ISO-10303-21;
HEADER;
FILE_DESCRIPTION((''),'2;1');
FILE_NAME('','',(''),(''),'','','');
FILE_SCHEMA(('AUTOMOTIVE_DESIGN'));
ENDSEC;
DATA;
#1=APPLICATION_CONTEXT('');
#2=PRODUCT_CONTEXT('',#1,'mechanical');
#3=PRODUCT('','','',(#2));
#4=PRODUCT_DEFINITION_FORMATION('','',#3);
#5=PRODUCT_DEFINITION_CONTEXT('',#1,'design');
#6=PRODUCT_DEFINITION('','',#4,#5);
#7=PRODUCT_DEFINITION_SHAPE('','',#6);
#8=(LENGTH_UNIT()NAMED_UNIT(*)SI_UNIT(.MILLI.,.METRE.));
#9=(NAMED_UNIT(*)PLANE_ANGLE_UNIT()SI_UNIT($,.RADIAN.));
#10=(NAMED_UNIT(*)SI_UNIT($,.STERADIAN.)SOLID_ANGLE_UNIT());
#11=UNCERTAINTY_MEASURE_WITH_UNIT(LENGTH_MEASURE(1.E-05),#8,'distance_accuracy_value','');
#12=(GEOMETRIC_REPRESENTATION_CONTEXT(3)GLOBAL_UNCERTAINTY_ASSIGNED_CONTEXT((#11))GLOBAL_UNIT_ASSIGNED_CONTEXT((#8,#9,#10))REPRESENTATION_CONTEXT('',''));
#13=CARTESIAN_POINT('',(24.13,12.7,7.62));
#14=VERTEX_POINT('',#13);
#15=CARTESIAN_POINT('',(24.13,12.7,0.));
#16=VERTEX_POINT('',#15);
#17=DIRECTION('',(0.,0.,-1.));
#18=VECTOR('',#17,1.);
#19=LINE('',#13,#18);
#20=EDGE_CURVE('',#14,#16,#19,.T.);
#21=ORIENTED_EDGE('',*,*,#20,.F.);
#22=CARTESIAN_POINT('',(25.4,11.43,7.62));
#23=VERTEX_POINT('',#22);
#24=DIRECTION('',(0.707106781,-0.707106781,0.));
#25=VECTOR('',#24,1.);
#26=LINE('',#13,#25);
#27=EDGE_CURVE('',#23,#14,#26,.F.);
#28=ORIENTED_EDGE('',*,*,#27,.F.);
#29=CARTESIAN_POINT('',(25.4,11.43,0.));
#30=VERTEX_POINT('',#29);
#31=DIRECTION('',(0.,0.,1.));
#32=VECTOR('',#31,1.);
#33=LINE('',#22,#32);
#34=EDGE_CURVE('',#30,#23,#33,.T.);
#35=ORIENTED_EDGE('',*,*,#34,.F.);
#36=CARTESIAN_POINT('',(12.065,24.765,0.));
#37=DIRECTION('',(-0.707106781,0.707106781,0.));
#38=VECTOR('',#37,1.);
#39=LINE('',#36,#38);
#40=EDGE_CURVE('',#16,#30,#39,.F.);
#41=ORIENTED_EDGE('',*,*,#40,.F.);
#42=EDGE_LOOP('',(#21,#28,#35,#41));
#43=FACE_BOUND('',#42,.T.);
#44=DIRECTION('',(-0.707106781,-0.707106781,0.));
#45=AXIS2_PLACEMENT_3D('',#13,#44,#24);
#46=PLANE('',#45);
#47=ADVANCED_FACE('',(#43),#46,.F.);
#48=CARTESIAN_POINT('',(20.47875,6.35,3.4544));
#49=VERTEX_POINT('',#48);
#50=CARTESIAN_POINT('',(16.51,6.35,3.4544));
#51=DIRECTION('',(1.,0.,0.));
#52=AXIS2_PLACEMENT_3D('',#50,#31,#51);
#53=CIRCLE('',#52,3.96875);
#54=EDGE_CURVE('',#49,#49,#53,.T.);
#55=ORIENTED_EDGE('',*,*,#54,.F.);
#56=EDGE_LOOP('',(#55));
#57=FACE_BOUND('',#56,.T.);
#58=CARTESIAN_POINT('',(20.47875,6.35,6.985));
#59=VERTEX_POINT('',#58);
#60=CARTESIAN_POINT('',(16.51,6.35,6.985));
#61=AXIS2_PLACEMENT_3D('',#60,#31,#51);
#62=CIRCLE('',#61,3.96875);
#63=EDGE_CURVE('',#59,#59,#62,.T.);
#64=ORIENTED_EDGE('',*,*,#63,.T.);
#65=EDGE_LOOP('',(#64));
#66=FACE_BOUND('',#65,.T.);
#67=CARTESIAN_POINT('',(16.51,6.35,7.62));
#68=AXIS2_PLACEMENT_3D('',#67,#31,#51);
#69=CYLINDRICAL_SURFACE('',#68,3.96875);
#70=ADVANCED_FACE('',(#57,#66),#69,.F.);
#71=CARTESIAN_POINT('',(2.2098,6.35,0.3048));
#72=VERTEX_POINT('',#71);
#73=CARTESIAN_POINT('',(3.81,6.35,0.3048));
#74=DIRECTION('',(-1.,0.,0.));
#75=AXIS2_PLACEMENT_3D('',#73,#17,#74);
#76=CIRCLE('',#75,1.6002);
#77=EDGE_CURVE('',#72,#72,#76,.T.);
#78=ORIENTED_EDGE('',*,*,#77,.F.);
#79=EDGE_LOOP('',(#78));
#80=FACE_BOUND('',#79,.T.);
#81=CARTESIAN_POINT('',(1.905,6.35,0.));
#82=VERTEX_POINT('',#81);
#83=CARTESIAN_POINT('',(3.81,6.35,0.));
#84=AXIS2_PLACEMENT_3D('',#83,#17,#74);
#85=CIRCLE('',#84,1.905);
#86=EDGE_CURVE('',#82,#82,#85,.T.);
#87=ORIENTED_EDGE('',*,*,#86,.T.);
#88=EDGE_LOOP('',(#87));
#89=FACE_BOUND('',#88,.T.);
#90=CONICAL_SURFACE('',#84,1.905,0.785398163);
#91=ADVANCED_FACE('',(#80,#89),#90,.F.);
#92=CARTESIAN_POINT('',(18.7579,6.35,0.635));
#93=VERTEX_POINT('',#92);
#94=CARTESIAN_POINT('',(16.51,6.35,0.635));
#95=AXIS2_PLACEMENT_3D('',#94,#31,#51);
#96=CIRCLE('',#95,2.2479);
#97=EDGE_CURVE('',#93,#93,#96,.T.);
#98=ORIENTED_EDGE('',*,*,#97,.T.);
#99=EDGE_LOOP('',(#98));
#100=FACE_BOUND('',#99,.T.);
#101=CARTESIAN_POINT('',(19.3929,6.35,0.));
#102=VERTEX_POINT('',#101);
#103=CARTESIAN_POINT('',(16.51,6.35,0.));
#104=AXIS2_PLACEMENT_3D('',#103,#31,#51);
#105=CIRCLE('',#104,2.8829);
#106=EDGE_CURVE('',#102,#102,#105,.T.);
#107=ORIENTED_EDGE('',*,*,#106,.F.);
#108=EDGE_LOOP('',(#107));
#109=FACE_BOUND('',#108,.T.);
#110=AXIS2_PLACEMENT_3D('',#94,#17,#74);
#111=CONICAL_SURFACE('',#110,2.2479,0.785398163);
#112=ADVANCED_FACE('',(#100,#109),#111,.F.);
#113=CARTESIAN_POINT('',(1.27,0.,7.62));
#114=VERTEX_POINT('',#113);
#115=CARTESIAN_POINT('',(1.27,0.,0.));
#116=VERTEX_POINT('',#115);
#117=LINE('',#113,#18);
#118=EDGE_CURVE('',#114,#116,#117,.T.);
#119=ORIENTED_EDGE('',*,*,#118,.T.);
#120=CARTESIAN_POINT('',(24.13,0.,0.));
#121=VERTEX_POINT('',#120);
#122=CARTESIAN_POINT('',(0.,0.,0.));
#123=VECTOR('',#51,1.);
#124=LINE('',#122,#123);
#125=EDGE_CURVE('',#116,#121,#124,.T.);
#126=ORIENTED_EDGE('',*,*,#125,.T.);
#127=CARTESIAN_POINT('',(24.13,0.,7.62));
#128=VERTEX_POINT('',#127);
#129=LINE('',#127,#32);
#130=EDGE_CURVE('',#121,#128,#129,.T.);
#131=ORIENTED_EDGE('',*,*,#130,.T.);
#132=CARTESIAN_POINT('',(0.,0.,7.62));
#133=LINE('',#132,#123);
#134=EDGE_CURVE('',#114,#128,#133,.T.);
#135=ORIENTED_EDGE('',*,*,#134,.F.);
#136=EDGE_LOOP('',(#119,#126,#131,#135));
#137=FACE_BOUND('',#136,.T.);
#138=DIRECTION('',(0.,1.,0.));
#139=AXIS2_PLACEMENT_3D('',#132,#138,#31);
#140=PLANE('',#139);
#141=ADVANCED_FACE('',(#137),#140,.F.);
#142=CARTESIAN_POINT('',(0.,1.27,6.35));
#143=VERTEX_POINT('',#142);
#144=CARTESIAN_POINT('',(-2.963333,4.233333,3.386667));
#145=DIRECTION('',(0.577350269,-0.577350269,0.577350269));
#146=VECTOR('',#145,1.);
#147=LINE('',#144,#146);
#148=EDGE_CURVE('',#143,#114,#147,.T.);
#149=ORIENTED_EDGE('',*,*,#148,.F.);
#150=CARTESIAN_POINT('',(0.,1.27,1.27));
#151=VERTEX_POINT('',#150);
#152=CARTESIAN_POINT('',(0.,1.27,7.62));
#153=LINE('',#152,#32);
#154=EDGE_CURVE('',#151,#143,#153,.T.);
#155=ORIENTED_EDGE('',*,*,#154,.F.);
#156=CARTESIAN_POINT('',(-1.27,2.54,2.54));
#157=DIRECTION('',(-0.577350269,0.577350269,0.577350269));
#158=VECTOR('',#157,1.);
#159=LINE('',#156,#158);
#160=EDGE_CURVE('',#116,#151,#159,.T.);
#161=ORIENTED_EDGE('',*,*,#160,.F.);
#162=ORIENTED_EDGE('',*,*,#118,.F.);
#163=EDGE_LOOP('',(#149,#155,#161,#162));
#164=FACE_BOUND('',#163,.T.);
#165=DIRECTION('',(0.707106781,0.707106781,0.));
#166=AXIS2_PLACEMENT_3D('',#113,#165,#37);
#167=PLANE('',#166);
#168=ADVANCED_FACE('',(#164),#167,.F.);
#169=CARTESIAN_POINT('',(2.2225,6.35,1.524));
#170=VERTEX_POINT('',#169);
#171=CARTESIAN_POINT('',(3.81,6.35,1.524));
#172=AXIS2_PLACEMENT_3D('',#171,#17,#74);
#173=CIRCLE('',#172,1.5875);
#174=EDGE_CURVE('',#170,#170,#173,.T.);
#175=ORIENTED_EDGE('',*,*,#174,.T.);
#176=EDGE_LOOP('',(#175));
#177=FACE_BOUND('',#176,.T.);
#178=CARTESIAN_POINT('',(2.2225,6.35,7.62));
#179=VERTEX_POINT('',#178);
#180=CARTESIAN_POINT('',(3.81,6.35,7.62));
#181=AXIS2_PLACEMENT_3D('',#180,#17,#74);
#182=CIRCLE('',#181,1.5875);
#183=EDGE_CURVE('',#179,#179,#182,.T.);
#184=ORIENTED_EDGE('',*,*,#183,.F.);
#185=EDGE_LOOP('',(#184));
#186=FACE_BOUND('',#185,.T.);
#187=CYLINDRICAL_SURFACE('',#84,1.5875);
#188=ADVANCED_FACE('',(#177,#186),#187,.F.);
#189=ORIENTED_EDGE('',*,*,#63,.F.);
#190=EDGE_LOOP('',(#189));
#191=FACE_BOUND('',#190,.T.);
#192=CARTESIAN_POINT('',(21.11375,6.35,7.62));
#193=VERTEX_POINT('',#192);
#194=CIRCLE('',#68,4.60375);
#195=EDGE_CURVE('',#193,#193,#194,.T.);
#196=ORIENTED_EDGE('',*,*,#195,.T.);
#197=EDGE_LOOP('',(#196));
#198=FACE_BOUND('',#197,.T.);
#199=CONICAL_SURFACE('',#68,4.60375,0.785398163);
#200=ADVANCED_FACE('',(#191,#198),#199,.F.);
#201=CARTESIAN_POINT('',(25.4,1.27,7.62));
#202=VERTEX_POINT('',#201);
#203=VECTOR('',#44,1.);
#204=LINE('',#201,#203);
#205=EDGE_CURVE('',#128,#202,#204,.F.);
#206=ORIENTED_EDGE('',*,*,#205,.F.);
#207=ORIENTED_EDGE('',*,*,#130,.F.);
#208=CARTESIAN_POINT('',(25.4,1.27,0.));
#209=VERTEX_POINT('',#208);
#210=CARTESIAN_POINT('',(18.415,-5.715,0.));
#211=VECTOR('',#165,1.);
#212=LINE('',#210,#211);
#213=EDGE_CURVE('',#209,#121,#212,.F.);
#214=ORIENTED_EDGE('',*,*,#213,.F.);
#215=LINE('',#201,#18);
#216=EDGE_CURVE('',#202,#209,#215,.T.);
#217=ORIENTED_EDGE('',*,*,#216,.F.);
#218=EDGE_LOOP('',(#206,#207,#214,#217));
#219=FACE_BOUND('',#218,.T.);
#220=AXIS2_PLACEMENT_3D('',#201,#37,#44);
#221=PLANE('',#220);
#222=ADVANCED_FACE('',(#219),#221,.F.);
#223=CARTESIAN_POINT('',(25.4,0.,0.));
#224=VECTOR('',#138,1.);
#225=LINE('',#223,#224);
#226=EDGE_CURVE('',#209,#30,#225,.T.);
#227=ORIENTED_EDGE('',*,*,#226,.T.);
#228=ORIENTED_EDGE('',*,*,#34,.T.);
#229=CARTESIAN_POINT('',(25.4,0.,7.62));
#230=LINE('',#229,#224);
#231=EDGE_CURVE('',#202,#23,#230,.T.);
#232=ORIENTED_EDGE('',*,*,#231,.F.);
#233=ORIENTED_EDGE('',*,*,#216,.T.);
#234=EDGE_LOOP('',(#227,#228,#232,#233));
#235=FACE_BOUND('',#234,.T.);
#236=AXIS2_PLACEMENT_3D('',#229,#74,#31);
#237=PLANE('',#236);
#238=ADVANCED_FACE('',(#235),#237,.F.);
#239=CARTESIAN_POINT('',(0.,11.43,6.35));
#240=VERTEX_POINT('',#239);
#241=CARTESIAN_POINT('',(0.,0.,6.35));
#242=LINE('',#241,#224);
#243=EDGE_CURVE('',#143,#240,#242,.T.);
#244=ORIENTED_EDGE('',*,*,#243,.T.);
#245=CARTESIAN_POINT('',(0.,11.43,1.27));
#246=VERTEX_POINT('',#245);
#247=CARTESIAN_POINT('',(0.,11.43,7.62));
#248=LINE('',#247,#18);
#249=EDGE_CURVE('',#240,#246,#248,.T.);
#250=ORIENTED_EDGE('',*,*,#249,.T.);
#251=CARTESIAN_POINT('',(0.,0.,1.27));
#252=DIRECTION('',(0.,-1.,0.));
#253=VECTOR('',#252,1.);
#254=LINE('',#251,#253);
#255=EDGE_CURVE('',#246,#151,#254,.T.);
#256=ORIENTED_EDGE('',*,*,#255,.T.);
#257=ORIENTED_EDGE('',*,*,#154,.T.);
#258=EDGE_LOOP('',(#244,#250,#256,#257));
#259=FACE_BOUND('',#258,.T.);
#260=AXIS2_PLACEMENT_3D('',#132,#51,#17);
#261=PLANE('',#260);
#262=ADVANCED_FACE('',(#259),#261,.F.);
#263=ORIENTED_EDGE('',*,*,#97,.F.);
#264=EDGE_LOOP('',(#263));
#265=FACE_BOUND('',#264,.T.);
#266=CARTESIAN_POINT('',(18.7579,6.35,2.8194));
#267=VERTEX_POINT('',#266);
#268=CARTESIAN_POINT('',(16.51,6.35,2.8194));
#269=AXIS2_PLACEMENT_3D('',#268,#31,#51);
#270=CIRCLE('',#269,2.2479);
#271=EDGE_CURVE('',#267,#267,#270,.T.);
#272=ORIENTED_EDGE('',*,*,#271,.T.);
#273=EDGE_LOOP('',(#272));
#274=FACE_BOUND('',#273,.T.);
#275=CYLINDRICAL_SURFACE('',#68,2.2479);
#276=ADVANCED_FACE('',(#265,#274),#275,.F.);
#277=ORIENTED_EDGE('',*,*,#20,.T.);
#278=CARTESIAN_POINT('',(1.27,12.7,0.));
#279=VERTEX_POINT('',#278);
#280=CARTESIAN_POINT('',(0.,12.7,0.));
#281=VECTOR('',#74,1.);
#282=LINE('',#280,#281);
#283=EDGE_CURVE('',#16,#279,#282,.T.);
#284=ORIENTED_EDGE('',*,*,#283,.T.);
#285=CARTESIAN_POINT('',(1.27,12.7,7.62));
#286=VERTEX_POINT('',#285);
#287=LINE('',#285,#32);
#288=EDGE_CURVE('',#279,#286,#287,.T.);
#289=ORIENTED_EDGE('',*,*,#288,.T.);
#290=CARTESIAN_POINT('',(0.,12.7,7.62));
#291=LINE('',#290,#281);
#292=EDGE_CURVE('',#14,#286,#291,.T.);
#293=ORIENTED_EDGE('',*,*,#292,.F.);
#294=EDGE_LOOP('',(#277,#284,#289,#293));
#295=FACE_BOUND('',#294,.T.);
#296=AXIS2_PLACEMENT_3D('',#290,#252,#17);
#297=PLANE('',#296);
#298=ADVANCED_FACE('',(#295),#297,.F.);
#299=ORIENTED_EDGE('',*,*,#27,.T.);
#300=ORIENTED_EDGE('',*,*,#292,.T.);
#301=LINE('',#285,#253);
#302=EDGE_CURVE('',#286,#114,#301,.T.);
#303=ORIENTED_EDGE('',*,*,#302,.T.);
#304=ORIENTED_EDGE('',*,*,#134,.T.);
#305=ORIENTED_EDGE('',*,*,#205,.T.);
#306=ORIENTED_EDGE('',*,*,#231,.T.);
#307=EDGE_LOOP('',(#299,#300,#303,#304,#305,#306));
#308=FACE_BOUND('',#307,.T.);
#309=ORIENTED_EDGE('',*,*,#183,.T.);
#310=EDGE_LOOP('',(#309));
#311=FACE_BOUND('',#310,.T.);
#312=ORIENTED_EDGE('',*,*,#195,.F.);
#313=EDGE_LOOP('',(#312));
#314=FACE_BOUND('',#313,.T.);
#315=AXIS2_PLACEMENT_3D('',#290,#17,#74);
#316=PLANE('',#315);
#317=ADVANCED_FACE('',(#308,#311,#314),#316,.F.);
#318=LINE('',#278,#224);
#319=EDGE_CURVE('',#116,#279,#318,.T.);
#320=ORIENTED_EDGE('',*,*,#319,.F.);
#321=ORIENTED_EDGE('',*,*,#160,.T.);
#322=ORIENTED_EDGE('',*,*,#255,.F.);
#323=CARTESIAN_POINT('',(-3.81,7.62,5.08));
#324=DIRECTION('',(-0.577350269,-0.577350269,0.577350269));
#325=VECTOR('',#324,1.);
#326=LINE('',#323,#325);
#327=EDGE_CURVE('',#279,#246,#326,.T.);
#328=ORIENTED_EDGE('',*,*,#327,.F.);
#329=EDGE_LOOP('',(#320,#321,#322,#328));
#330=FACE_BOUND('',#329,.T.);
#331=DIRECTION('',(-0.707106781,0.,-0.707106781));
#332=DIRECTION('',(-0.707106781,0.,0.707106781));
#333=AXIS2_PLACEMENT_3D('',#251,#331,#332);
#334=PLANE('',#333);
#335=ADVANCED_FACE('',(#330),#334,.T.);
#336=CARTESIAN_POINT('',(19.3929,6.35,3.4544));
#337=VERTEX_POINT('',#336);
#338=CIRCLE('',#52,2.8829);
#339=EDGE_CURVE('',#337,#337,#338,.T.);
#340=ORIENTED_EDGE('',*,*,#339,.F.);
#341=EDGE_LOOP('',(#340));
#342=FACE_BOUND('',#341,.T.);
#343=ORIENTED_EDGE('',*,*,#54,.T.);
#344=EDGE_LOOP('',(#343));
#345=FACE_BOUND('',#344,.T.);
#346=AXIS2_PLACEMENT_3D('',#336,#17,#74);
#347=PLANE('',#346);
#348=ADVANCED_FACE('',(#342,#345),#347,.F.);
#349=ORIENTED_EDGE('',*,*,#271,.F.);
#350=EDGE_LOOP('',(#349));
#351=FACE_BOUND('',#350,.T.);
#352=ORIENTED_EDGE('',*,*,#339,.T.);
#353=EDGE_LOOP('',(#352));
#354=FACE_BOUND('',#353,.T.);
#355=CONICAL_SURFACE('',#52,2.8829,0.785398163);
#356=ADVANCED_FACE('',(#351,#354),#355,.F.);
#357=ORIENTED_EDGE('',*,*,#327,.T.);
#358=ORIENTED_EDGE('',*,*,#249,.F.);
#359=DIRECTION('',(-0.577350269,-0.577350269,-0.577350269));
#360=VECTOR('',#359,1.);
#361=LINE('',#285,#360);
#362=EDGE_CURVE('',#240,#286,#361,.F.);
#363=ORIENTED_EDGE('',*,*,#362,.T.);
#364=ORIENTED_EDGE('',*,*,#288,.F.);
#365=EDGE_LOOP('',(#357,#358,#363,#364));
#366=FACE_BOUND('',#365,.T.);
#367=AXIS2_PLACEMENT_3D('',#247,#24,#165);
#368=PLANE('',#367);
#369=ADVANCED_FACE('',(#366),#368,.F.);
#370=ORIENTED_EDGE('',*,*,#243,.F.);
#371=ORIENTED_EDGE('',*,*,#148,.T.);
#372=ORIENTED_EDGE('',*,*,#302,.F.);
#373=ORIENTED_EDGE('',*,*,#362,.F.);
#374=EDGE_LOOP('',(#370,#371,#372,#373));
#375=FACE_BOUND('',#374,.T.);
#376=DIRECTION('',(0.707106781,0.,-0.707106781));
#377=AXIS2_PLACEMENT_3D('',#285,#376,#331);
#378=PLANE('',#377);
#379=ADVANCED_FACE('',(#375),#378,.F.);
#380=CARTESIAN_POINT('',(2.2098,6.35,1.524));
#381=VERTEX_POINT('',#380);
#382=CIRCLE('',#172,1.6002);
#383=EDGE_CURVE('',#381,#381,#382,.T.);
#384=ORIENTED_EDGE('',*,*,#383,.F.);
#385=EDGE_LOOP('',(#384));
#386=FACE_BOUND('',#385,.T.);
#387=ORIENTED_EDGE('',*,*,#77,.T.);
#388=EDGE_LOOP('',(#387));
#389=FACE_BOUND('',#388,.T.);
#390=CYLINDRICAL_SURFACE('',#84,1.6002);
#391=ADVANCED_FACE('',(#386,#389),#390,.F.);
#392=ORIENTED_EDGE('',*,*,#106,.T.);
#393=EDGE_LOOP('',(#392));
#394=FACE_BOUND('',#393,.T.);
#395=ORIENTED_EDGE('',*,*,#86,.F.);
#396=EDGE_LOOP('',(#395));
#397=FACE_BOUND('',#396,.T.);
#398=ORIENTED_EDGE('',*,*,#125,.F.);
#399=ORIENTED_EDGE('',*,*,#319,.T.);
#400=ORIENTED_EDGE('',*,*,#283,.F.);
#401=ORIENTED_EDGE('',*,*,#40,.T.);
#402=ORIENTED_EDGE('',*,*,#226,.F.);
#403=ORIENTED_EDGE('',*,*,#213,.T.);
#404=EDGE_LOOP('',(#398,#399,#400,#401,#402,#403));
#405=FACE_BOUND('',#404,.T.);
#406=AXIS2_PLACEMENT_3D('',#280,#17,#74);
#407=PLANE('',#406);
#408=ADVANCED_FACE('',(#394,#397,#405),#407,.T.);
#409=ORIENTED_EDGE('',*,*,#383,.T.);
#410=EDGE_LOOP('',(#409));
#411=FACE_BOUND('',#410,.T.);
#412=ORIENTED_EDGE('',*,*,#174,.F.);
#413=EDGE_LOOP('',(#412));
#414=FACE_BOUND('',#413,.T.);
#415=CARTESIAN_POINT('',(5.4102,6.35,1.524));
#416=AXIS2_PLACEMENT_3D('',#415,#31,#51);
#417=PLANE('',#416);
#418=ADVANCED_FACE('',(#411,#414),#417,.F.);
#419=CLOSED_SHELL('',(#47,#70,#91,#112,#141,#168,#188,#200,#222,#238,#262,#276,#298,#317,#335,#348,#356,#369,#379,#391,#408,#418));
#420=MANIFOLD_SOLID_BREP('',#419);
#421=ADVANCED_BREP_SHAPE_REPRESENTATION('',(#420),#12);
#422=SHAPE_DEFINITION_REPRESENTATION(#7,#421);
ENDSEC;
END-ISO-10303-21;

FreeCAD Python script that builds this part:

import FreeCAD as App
import Part
import Sketcher
from FreeCAD import Vector
Q = App.Units.Quantity


def edges_at(feature, points):
    """Names of the edges that pass closest to the given points."""
    edges = feature.Shape.Edges
    near = lambda p: min(range(len(edges)), key=lambda i: edges[i].distToShape(Part.Vertex(*p))[0])
    return sorted({f"Edge{near(p) + 1}" for p in points})


def add_polygon(sketch, points):
    """Adds a closed chain of lines whose ends are joined by coincident constraints."""
    first, n = sketch.GeometryCount, len(points)
    for a, b in zip(points, points[1:] + points[:1]):
        sketch.addGeometry(Part.LineSegment(App.Vector(*a, 0), App.Vector(*b, 0)), False)
    for i in range(n):
        sketch.addConstraint(Sketcher.Constraint("Coincident", first + i, 2, first + (i + 1) % n, 1))

doc = App.newDocument("Part")
body = doc.addObject("PartDesign::Body", "Body")

sketch1 = body.newObject("Sketcher::SketchObject", "Sketch")
sketch1.AttachmentSupport = (doc.getObject("XY_Plane"), [""])
sketch1.MapMode = "FlatFace"
add_polygon(sketch1, [(0, 12.7), (0, 0), (25.4, 0), (25.4, 12.7)])
sketch1.addGeometry(Part.Circle(Vector(16.5, 6.3, 0), Vector(0, 0, 1), 1.3), False)
sketch1.addConstraint([
    Sketcher.Constraint("Vertical", 0),
    Sketcher.Constraint("Horizontal", 1),
    Sketcher.Constraint("Vertical", 2),
    Sketcher.Constraint("Horizontal", 3),
    Sketcher.Constraint("Coincident", 0, 2, -1, 1),
    Sketcher.Constraint("Diameter", 4, Q("0.1 in")),
    Sketcher.Constraint("DistanceX", 1, 1, 1, 2, Q("1 in")),
    Sketcher.Constraint("DistanceY", 0, 2, 0, 1, Q("0.5 in")),
    Sketcher.Constraint("DistanceX", -1, 1, 4, 3, Q("0.65 in")),
    Sketcher.Constraint("DistanceY", -1, 1, 4, 3, Q("0.25 in")),
])
pad1 = body.newObject("PartDesign::Pad", "Pad")
pad1.Profile = sketch1
pad1.Length = Q("0.3 in")
doc.recompute()

chamfer = body.newObject("PartDesign::Chamfer", "Chamfer")
chamfer.Base = (pad1, edges_at(pad1, [
    (0, 6.35, 7.62),
    (0, 6.35, 0),
    (0, 12.7, 3.81),
    (25.4, 12.7, 3.81),
    (25.4, 0, 3.81),
    (0, 0, 3.81),
]))
chamfer.Size = Q("0.05 in")

sketch2 = body.newObject("Sketcher::SketchObject", "Sketch001")
sketch2.AttachmentSupport = (doc.getObject("YZ_Plane"), [""])
sketch2.MapMode = "FlatFace"
sketch2.AttachmentOffset = App.Placement(Vector(0, 0, 0.65 * 25.4), App.Rotation())
add_polygon(sketch2, [(6.3, 0), (6.3, 7.6), (1.7, 7.6), (2.4, 7), (2.4, 3.5), (3.5, 3.5), (4.1, 2.8), (4.1, 0.6), (3.5, 0)])
sketch2.addGeometry(Part.LineSegment(Vector(6.3, 7.6, 0), Vector(6.3, 0, 0)), True)
sketch2.addConstraint([
    Sketcher.Constraint("Vertical", 0),
    Sketcher.Constraint("Horizontal", 1),
    Sketcher.Constraint("Vertical", 3),
    Sketcher.Constraint("Horizontal", 4),
    Sketcher.Constraint("Vertical", 6),
    Sketcher.Constraint("Horizontal", 8),
    Sketcher.Constraint("Vertical", 9),
    Sketcher.Constraint("Coincident", 9, 1, 0, 2),
    Sketcher.Constraint("PointOnObject", 7, 2, -1),
    Sketcher.Constraint("PointOnObject", 9, 2, -1),
    Sketcher.Constraint("Parallel", 2, 5),
    Sketcher.Constraint("Perpendicular", 5, 7),
    Sketcher.Constraint("Vertical", 4, 2, 7, 2),
    Sketcher.Constraint("Equal", 2, 5),
    Sketcher.Constraint("Equal", 5, 7),
    Sketcher.Constraint("DistanceY", 0, 1, 0, 2, Q("0.3 in")),
    Sketcher.Constraint("DistanceY", 3, 2, 3, 1, Q("0.139 in")),
    Sketcher.Constraint("DistanceY", 6, 2, 6, 1, Q("0.086 in")),
    Sketcher.Constraint("DistanceX", -1, 1, 0, 2, Q("0.25 in")),
    Sketcher.Constraint("DistanceX", 8, 1, 8, 2, Q("0.1135 in")),
    Sketcher.Constraint("DistanceX", -1, 1, 2, 2, Q("0.09375 in")),
])
groove = body.newObject("PartDesign::Groove", "Groove")
groove.Profile = sketch2
groove.ReferenceAxis = (sketch2, ["Axis0"])
groove.Angle = 360

sketch3 = body.newObject("Sketcher::SketchObject", "Sketch002")
sketch3.AttachmentSupport = (doc.getObject("YZ_Plane"), [""])
sketch3.MapMode = "FlatFace"
sketch3.AttachmentOffset = App.Placement(Vector(0, 0, 0.15 * 25.4), App.Rotation())
add_polygon(sketch3, [(6.35, 7.62), (6.35, 0), (8.255, 0), (7.95, 0.305), (7.95, 1.524), (7.938, 1.524), (7.938, 7.62)])
sketch3.addGeometry(Part.LineSegment(Vector(6.35, 0, 0), Vector(6.35, 7.62, 0)), True)
sketch3.addConstraint([
    Sketcher.Constraint("Vertical", 0),
    Sketcher.Constraint("Horizontal", 1),
    Sketcher.Constraint("Vertical", 3),
    Sketcher.Constraint("Horizontal", 4),
    Sketcher.Constraint("Vertical", 5),
    Sketcher.Constraint("Horizontal", 6),
    Sketcher.Constraint("Vertical", 7),
    Sketcher.Constraint("Coincident", 7, 1, 0, 2),
    Sketcher.Constraint("PointOnObject", 0, 2, -1),
    Sketcher.Constraint("Horizontal", 5, 2, 7, 2),
    Sketcher.Constraint("DistanceY", 0, 2, 0, 1, Q("0.3 in")),
    Sketcher.Constraint("Angle", 2, Q("135 deg")),
    Sketcher.Constraint("DistanceY", 5, 1, 5, 2, Q("0.24 in")),
    Sketcher.Constraint("DistanceX", 1, 1, 1, 2, Q("0.075 in")),
    Sketcher.Constraint("DistanceX", 6, 2, 6, 1, Q("0.0625 in")),
    Sketcher.Constraint("DistanceY", 3, 1, 3, 2, Q("0.048 in")),
    Sketcher.Constraint("DistanceX", -1, 1, 0, 2, Q("0.25 in")),
])
groove2 = body.newObject("PartDesign::Groove", "Groove001")
groove2.Profile = sketch3
groove2.ReferenceAxis = (sketch3, ["Axis0"])
groove2.Angle = 360

doc.recompute()
